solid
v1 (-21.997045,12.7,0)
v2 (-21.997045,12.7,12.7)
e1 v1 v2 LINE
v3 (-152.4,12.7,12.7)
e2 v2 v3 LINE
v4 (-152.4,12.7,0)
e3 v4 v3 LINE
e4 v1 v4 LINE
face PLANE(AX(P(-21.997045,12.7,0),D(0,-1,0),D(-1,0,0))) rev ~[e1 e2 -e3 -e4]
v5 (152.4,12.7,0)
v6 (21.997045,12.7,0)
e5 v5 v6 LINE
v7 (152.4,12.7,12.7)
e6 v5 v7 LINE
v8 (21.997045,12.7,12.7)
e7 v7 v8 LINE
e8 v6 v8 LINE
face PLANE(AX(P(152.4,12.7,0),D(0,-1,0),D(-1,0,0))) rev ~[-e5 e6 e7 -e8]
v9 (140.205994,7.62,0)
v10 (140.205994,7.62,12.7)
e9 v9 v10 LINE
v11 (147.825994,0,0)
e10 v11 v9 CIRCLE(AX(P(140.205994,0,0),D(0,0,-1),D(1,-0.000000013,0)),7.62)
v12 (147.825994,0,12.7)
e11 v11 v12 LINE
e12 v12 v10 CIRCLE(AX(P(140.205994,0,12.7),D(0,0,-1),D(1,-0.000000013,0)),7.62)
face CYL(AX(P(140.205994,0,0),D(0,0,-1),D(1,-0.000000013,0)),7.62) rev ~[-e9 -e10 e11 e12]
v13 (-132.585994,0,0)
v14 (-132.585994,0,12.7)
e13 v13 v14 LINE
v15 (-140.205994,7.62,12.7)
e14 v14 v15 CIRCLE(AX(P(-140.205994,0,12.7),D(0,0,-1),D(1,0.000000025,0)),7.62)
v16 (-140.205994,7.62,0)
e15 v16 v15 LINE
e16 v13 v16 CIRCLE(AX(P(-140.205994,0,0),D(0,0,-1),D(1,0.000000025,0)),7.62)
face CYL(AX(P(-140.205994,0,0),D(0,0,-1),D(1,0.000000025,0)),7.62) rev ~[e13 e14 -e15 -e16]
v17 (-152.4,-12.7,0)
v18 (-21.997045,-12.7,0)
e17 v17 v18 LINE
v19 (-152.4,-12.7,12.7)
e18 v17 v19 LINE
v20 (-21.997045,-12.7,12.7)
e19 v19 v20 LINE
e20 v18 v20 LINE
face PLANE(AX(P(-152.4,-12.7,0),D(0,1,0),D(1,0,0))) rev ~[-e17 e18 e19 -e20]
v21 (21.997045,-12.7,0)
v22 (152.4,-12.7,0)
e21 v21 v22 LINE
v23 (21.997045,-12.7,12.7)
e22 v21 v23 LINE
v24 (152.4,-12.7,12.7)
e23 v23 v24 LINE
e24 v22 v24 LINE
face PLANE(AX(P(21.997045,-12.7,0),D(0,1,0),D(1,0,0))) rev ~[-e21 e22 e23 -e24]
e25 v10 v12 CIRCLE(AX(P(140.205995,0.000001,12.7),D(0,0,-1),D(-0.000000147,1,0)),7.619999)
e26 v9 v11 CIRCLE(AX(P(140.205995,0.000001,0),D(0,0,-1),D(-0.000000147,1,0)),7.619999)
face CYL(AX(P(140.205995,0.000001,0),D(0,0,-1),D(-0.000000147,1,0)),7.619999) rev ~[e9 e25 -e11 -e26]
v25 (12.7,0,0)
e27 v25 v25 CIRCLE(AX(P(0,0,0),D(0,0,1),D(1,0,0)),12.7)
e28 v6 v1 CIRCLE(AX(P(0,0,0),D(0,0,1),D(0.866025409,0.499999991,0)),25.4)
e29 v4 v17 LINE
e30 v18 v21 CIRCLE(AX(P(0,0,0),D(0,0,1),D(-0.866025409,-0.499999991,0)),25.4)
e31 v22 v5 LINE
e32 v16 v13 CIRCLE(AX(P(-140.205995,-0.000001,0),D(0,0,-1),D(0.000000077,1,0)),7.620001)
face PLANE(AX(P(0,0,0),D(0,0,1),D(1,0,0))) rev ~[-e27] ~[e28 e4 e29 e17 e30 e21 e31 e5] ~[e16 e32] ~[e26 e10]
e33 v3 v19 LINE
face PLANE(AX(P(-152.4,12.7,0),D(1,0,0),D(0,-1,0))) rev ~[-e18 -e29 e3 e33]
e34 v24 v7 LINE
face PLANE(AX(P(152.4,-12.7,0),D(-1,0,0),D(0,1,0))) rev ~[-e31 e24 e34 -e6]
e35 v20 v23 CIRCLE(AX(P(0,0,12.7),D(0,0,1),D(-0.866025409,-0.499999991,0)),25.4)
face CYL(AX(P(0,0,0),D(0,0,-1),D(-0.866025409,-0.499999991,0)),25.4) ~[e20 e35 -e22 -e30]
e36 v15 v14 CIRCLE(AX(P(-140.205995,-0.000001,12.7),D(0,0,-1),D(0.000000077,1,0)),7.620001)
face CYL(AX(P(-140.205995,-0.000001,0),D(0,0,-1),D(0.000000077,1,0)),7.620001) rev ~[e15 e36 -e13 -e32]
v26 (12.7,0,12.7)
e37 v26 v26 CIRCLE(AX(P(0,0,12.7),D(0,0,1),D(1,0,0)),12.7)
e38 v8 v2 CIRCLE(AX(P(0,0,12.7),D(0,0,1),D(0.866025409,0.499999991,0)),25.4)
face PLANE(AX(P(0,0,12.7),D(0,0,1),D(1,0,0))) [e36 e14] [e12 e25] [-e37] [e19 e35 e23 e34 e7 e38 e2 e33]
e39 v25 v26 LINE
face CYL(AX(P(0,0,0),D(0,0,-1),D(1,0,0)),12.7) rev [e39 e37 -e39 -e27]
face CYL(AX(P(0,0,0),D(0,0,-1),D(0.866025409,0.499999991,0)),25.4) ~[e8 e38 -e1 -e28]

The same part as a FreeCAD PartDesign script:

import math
import FreeCAD as App
import Part
import Sketcher

V = App.Vector
Q = App.Units.Quantity

doc = App.newDocument("Part")
body = doc.addObject("PartDesign::Body", "Body")

# Sketch on XY plane
sketch1 = body.newObject("Sketcher::SketchObject", "Sketch")
sketch1.AttachmentSupport = (doc.getObject("XY_Plane"), [""])
sketch1.MapMode = "FlatFace"
sketch1.addGeometry([
    Part.LineSegment(V(152, 13, 0), V(22, 13, 0)),  # 0
    Part.ArcOfCircle(Part.Circle(V(0, 0, 0), V(0, 0, 1), 25), math.radians(30), math.radians(150)),  # 1
    Part.LineSegment(V(-22, 13, 0), V(-152, 13, 0)),  # 2
    Part.LineSegment(V(-152, 13, 0), V(-152, -13, 0)),  # 3
    Part.LineSegment(V(-152, -13, 0), V(-22, -13, 0)),  # 4
    Part.ArcOfCircle(Part.Circle(V(0, 0, 0), V(0, 0, 1), 25), math.radians(-150), math.radians(-30)),  # 5
    Part.LineSegment(V(22, -13, 0), V(152, -13, 0)),  # 6
    Part.LineSegment(V(152, -13, 0), V(152, 13, 0)),  # 7
    Part.ArcOfCircle(Part.Circle(V(-140, 0, 0), V(0, 0, 1), 8), math.radians(90), math.radians(360)),  # 8
    Part.ArcOfCircle(Part.Circle(V(-140, 0, 0), V(0, 0, 1), 8), math.radians(0), math.radians(90)),  # 9
    Part.Circle(V(0, 0, 0), V(0, 0, 1), 13),  # 10
    Part.ArcOfCircle(Part.Circle(V(140, 0, 0), V(0, 0, 1), 8), math.radians(90), math.radians(360)),  # 11
    Part.ArcOfCircle(Part.Circle(V(140, 0, 0), V(0, 0, 1), 8), math.radians(0), math.radians(90)),  # 12
], False)
sketch1.addConstraint([
    Sketcher.Constraint("Coincident", 0, 2, 1, 1),
    Sketcher.Constraint("Coincident", 1, 2, 2, 1),
    Sketcher.Constraint("Coincident", 2, 2, 3, 1),
    Sketcher.Constraint("Coincident", 3, 2, 4, 1),
    Sketcher.Constraint("Coincident", 4, 2, 5, 1),
    Sketcher.Constraint("Coincident", 5, 2, 6, 1),
    Sketcher.Constraint("Coincident", 6, 2, 7, 1),
    Sketcher.Constraint("Coincident", 7, 2, 0, 1),
    Sketcher.Constraint("Tangent", 8, 1, 9, 2),
    Sketcher.Constraint("Coincident", 9, 1, 8, 2),
    Sketcher.Constraint("Tangent", 11, 1, 12, 2),
    Sketcher.Constraint("Coincident", 12, 1, 11, 2),
    Sketcher.Constraint("Horizontal", 0),
    Sketcher.Constraint("Horizontal", 2),
    Sketcher.Constraint("Vertical", 3),
    Sketcher.Constraint("Horizontal", 4),
    Sketcher.Constraint("Horizontal", 6),
    Sketcher.Constraint("Vertical", 7),
    Sketcher.Constraint("Coincident", 1, 3, -1, 1),
    Sketcher.Constraint("Coincident", 5, 3, -1, 1),
    Sketcher.Constraint("Coincident", 10, 3, -1, 1),
    Sketcher.Constraint("Equal", 1, 5),
    Sketcher.Constraint("Equal", 9, 11),
    Sketcher.Constraint("Symmetric", 8, 3, 11, 3, -1, 1),
    Sketcher.Constraint("Symmetric", 2, 2, 6, 2, -1, 1),
    Sketcher.Constraint("Symmetric", 8, 1, 11, 1, -2),
    Sketcher.Constraint("PointOnObject", 9, 1, -1),
    Sketcher.Constraint("PointOnObject", 12, 1, -1),
    Sketcher.Constraint("Horizontal", 0, 2, 1, 2),
    Sketcher.Constraint("Horizontal", 4, 2, 5, 2),
    Sketcher.Constraint("Vertical", 9, 3, 8, 1),
    Sketcher.Constraint("Diameter", 10, Q("1 in")),
    Sketcher.Constraint("Radius", 1, Q("1 in")),
    Sketcher.Constraint("Radius", 8, Q("0.3 in")),
    Sketcher.Constraint("DistanceY", 3, 2, 3, 1, Q("1 in")),
    Sketcher.Constraint("DistanceX", 2, 2, -1, 1, Q("6 in")),
    Sketcher.Constraint("DistanceX", 8, 3, 11, 3, 280.411988),
])
pad1 = body.newObject("PartDesign::Pad", "Pad")
pad1.Profile = sketch1
pad1.Length = Q("0.5 in")

doc.recompute()
